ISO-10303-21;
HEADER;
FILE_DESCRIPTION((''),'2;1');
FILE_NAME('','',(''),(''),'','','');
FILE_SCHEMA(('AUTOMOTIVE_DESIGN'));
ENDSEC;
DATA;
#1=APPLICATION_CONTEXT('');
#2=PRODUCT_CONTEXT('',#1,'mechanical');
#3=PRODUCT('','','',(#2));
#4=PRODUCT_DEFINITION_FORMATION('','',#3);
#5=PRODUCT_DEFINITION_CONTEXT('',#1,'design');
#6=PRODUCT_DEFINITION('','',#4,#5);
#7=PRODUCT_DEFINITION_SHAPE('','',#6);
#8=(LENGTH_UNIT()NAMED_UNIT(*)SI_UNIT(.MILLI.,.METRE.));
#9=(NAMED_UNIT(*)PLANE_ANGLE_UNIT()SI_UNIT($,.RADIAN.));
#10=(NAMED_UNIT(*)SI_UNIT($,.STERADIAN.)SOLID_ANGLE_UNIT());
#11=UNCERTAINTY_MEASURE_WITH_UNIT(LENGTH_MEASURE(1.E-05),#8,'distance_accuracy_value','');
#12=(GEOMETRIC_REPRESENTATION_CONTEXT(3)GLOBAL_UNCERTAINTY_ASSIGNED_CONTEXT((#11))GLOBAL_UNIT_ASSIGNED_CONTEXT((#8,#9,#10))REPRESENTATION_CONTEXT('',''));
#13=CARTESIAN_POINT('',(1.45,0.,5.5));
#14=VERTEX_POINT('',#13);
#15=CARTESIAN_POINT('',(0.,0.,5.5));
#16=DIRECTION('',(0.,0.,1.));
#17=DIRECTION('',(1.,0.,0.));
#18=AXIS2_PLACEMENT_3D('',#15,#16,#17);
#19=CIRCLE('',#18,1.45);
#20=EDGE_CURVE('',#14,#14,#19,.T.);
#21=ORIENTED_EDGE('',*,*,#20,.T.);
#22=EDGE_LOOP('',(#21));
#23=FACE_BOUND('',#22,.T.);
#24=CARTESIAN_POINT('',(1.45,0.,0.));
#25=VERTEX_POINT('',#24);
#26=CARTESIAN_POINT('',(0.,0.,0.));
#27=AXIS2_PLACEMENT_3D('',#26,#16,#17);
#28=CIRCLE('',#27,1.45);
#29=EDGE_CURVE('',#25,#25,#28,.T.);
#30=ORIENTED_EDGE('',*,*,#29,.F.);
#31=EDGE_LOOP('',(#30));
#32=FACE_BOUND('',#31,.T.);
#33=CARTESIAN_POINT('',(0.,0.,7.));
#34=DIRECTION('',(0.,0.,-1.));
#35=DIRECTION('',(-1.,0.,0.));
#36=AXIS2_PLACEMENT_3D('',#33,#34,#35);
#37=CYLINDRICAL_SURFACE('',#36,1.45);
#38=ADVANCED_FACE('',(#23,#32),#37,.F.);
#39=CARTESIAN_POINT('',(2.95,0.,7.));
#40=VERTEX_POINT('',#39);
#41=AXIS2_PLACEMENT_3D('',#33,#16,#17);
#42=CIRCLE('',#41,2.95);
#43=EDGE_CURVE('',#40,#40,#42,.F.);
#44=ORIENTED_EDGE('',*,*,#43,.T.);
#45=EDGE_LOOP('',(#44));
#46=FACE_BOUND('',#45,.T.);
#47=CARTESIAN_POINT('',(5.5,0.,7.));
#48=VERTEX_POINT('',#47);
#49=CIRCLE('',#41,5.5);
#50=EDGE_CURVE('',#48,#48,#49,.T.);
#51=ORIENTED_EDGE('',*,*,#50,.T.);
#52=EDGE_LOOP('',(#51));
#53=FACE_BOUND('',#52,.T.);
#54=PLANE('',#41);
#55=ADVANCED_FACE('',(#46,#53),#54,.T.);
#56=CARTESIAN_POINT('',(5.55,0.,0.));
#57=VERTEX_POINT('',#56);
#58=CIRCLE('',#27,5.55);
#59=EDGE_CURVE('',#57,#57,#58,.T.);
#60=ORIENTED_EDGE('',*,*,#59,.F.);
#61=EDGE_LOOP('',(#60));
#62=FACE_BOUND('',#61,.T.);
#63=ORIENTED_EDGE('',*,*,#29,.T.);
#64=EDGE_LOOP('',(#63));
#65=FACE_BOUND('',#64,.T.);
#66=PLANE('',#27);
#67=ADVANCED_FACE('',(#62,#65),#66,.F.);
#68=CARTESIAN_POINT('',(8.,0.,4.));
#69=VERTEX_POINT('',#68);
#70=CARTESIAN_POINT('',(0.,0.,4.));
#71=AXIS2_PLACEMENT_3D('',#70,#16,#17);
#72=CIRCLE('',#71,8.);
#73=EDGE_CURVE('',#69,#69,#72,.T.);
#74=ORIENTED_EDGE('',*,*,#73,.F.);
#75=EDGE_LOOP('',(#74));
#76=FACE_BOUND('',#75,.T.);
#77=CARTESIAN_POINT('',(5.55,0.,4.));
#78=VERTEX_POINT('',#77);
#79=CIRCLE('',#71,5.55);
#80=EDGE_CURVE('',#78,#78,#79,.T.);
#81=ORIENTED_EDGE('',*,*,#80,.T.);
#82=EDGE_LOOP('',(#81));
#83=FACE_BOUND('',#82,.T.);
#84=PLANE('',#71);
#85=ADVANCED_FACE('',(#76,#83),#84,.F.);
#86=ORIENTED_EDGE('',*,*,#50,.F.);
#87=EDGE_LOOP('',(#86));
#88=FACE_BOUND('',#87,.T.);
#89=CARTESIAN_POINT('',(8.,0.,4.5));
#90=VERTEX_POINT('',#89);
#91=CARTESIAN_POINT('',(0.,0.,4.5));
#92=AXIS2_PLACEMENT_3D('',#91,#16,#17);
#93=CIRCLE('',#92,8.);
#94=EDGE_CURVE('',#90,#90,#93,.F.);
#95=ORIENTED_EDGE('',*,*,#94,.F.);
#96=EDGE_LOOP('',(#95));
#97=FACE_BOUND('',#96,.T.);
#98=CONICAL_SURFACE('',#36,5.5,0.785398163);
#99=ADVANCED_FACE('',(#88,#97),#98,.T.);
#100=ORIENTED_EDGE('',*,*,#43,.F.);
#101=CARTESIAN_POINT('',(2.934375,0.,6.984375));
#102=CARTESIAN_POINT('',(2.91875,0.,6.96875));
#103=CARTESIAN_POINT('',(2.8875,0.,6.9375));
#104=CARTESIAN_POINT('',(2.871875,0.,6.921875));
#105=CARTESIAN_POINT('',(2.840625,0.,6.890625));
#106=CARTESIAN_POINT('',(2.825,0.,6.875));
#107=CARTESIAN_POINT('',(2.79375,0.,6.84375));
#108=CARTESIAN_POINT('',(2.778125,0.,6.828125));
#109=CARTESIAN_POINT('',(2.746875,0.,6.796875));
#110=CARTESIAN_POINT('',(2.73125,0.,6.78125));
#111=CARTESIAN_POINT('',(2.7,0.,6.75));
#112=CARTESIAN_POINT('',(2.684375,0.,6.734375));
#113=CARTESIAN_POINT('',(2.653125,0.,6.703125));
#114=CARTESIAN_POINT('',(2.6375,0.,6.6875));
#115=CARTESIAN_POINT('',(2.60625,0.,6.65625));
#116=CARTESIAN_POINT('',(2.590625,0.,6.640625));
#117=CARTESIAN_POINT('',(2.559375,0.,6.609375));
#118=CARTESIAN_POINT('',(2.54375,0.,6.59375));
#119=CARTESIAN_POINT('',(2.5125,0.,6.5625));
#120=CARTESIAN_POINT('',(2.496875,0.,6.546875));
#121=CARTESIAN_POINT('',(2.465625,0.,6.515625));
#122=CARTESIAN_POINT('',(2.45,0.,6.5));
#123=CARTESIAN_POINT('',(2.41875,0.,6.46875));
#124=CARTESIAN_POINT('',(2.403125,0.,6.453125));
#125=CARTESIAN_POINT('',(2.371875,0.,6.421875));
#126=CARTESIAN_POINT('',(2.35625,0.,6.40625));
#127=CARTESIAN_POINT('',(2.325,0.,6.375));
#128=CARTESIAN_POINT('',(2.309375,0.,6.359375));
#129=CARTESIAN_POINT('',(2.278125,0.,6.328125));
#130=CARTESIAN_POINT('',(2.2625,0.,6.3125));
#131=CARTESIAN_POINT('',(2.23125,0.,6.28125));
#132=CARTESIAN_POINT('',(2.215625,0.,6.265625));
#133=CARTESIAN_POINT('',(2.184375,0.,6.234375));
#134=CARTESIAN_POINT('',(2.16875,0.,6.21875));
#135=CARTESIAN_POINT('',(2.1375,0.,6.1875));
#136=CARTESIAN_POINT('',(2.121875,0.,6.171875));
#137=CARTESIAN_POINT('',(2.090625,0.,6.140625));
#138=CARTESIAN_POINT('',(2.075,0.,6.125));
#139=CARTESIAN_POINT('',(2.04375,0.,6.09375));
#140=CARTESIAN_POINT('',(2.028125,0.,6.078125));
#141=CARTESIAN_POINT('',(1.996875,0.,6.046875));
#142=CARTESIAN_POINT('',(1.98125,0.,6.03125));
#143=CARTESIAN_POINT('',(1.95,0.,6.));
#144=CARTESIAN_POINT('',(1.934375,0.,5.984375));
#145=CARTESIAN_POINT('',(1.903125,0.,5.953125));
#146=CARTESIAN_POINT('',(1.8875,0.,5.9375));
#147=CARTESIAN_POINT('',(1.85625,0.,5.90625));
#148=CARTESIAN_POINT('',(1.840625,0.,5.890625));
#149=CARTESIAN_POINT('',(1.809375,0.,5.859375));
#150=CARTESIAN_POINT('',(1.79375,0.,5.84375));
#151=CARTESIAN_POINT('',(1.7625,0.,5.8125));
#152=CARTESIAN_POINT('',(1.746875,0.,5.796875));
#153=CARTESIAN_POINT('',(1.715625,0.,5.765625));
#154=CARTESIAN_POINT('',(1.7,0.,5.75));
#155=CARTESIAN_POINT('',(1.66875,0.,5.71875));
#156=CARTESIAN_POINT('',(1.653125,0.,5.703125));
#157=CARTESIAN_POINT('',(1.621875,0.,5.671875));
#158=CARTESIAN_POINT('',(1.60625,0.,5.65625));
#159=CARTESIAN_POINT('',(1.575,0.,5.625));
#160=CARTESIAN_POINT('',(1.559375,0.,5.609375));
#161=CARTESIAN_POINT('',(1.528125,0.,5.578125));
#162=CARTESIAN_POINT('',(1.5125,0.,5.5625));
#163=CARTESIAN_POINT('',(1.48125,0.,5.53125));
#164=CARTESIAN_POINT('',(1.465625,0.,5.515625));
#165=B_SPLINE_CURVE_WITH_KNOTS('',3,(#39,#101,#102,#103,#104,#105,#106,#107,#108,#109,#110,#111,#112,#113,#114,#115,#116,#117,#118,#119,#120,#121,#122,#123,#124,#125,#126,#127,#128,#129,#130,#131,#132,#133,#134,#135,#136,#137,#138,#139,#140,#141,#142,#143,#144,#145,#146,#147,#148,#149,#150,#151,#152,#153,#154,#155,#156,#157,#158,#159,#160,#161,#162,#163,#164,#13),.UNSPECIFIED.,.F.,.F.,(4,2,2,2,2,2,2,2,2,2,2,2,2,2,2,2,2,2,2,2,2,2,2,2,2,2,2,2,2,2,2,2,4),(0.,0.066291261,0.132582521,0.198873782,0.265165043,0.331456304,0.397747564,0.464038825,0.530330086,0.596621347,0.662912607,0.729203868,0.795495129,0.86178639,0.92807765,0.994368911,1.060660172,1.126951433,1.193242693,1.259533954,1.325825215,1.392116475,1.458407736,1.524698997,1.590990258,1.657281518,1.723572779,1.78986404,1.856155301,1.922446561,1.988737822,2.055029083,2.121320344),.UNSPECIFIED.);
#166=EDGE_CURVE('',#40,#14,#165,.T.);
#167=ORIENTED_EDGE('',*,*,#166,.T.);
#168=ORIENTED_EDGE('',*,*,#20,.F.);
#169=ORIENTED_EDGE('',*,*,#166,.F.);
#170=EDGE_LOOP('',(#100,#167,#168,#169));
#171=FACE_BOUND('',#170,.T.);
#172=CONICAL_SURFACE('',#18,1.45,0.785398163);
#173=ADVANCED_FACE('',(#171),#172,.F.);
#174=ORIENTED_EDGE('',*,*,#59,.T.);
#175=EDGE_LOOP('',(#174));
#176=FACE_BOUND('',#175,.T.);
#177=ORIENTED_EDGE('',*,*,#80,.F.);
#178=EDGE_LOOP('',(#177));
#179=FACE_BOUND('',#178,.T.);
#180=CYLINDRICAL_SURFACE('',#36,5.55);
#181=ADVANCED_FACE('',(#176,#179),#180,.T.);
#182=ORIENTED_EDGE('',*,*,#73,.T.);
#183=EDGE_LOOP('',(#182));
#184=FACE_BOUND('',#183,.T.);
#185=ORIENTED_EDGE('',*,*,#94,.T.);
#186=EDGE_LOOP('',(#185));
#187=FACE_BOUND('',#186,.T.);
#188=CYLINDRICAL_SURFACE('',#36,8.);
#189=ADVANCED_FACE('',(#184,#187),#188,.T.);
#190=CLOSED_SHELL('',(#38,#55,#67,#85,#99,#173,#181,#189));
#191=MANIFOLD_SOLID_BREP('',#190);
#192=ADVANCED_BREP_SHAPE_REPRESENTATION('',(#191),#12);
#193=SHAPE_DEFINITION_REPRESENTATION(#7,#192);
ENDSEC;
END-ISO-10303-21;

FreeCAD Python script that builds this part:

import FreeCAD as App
import Part
import Sketcher

V = App.Vector


def edges_at(feature, points):
    """Names of the edges that pass closest to the given points."""
    edges = feature.Shape.Edges
    near = lambda p: min(range(len(edges)), key=lambda i: edges[i].distToShape(Part.Vertex(*p))[0])
    return sorted({f"Edge{near(p) + 1}" for p in points})

doc = App.newDocument("Part")
params = doc.addObject("Spreadsheet::Sheet", "Params")
for row, (alias, value) in enumerate([
    ("sketch1_diameter", "11.1 mm"),
    ("sketch1_diameter2", "2.9 mm"),
    ("pad1_length", "7 mm"),
    ("chamfer_size", "1.5 mm"),
    ("sketch2_diameter", "16 mm"),
    ("sketch2_diameter2", "11.1 mm"),
    ("pad2_length", "3 mm"),
    ("chamfer2_size", "2.5 mm"),
], start=1):
    params.set(f"A{row}", alias)
    params.set(f"B{row}", "=" + value)
    params.setAlias(f"B{row}", alias)

body = doc.addObject("PartDesign::Body", "Body")

# Sketch on XY plane
sketch1 = body.newObject("Sketcher::SketchObject", "Sketch")
sketch1.AttachmentSupport = (doc.getObject("XY_Plane"), [""])
sketch1.MapMode = "FlatFace"
sketch1.addGeometry([
    Part.Circle(V(0, 0, 0), V(0, 0, 1), 5.55),
    Part.Circle(V(0, 0, 0), V(0, 0, 1), 1.45),
], False)
sketch1.addConstraint([
    Sketcher.Constraint("Coincident", 0, 3, -1, 1),
    Sketcher.Constraint("Coincident", 1, 3, -1, 1),
    Sketcher.Constraint("Diameter", 0, 11.1),
    Sketcher.Constraint("Diameter", 1, 2.9),
])
sketch1.setExpression("Constraints[2]", "Params.sketch1_diameter")
sketch1.setExpression("Constraints[3]", "Params.sketch1_diameter2")
pad1 = body.newObject("PartDesign::Pad", "Pad")
pad1.Profile = sketch1
pad1.setExpression("Length", "Params.pad1_length")
doc.recompute()

chamfer = body.newObject("PartDesign::Chamfer", "Chamfer")
chamfer.Base = (pad1, edges_at(pad1, [(-1.45, 0, 7)]))
chamfer.setExpression("Size", "Params.chamfer_size")

# Sketch on XY plane
sketch2 = body.newObject("Sketcher::SketchObject", "Sketch001")
sketch2.AttachmentSupport = (doc.getObject("XY_Plane"), [""])
sketch2.MapMode = "FlatFace"
sketch2.AttachmentOffset = App.Placement(V(0, 0, 4), App.Rotation())
sketch2.addGeometry([
    Part.Circle(V(0, 0, 0), V(0, 0, 1), 8),
    Part.Circle(V(0, 0, 0), V(0, 0, 1), 5.55),
], False)
sketch2.addConstraint([
    Sketcher.Constraint("Coincident", 0, 3, -1, 1),
    Sketcher.Constraint("Coincident", 1, 3, -1, 1),
    Sketcher.Constraint("Diameter", 0, 16.0),
    Sketcher.Constraint("Diameter", 1, 11.1),
])
sketch2.setExpression("Constraints[2]", "Params.sketch2_diameter")
sketch2.setExpression("Constraints[3]", "Params.sketch2_diameter2")
pad2 = body.newObject("PartDesign::Pad", "Pad001")
pad2.Profile = sketch2
pad2.setExpression("Length", "Params.pad2_length")
doc.recompute()

chamfer2 = body.newObject("PartDesign::Chamfer", "Chamfer001")
chamfer2.Base = (pad2, edges_at(pad2, [(-8, 0, 7)]))
chamfer2.setExpression("Size", "Params.chamfer2_size")

doc.recompute()
